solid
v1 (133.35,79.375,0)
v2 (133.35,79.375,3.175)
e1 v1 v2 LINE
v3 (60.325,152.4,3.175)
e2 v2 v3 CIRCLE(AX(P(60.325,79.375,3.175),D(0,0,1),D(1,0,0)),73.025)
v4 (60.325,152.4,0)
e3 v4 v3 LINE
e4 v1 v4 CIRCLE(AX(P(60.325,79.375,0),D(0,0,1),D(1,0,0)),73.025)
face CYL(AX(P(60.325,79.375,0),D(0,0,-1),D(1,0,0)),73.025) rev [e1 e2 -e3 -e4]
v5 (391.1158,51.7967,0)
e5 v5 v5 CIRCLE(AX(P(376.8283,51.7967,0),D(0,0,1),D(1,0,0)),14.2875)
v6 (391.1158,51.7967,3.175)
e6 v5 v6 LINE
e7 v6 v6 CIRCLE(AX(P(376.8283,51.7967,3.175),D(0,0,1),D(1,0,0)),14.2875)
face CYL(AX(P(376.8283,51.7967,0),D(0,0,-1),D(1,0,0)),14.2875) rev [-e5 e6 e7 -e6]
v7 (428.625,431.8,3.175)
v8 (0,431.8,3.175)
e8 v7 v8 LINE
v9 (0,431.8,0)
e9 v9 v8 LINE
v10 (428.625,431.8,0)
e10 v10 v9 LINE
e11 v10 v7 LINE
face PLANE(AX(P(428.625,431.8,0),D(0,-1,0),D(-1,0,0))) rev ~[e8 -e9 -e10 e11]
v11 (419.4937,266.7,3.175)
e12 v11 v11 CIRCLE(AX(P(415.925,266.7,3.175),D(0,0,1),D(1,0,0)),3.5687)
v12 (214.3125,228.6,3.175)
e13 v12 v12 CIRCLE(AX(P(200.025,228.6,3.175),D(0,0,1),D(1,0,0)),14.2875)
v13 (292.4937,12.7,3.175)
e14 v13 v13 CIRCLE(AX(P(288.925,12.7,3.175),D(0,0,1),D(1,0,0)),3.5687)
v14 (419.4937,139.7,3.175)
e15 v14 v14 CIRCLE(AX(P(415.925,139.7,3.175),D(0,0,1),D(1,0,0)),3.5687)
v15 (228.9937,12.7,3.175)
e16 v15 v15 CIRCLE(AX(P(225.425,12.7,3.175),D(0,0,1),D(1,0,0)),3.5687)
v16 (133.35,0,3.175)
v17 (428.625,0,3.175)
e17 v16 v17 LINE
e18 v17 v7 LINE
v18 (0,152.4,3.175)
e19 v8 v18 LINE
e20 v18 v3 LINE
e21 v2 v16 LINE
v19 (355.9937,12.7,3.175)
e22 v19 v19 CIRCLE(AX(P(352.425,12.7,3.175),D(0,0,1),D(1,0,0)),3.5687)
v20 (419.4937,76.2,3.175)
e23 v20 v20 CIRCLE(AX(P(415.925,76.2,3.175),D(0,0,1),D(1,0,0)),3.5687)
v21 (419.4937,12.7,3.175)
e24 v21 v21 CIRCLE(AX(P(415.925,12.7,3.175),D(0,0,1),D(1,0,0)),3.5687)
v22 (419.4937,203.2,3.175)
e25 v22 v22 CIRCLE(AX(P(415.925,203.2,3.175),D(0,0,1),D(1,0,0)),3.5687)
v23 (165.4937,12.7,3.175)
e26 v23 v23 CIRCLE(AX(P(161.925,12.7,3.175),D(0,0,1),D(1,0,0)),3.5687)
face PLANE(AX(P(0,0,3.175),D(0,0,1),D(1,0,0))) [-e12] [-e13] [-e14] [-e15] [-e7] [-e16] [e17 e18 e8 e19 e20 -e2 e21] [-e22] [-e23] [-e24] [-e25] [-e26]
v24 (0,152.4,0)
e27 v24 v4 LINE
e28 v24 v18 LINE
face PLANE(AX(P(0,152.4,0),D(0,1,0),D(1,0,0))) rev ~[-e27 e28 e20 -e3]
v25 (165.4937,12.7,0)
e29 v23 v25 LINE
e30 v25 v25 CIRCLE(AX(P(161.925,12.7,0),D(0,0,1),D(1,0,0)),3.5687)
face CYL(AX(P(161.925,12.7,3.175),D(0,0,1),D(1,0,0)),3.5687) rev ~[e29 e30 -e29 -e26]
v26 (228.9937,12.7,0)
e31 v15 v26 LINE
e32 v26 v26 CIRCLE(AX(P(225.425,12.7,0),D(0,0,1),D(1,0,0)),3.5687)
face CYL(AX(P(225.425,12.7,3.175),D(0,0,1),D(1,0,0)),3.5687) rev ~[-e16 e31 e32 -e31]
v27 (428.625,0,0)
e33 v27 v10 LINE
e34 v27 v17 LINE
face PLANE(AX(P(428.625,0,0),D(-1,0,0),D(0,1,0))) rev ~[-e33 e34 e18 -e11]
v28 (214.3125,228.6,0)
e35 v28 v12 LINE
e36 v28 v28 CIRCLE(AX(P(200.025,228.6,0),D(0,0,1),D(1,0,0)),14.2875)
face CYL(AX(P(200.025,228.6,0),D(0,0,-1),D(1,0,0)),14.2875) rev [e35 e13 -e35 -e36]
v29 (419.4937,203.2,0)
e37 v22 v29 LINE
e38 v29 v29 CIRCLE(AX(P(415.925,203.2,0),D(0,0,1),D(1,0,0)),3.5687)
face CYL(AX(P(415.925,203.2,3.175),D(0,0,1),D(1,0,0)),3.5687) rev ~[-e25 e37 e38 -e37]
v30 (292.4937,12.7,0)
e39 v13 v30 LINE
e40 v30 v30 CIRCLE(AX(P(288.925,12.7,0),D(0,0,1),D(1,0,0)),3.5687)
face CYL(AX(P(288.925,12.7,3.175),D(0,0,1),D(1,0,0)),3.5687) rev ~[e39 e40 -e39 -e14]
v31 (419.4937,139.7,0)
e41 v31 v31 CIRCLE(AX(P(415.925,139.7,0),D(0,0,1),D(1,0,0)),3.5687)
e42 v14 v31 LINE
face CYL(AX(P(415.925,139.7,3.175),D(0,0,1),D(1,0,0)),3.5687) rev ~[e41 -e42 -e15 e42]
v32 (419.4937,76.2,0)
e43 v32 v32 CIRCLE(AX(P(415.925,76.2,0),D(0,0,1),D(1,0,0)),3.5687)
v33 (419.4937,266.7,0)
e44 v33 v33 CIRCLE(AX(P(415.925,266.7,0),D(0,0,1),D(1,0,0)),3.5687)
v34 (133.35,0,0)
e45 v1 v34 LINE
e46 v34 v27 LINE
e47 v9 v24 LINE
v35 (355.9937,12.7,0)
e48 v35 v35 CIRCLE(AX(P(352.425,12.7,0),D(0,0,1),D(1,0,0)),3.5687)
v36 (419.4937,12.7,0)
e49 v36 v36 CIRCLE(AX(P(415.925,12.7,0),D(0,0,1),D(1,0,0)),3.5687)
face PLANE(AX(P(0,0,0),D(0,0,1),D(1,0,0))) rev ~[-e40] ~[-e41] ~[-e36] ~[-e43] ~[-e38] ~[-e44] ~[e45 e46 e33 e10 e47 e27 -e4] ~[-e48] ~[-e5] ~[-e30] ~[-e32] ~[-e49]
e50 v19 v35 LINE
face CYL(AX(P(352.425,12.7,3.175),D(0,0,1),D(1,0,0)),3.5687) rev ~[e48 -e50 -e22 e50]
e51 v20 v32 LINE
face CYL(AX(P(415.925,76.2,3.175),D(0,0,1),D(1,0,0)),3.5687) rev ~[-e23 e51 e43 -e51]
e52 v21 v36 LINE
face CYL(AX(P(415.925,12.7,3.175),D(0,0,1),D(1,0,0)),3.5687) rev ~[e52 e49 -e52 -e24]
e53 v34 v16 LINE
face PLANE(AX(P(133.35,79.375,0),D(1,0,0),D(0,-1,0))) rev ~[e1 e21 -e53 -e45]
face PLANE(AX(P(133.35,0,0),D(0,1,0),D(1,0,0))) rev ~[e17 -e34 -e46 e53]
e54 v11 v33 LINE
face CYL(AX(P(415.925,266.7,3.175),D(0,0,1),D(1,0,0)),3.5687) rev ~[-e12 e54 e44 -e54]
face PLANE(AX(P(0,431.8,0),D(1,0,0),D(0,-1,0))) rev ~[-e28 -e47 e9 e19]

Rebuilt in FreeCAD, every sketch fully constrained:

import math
import FreeCAD as App
import Part
import Sketcher

V = App.Vector
Q = App.Units.Quantity

doc = App.newDocument("Part")
body = doc.addObject("PartDesign::Body", "Body")

sketch1 = body.newObject("Sketcher::SketchObject", "Sketch")
sketch1.AttachmentSupport = (doc.getObject("XY_Plane"), [""])
sketch1.MapMode = "FlatFace"
sketch1.addGeometry(Part.LineSegment(V(133, 79, 0), V(133, 0, 0)), False)
sketch1.addGeometry(Part.LineSegment(V(133, 0, 0), V(429, 0, 0)), False)
sketch1.addGeometry(Part.LineSegment(V(429, 0, 0), V(429, 432, 0)), False)
sketch1.addGeometry(Part.LineSegment(V(429, 432, 0), V(0, 432, 0)), False)
sketch1.addGeometry(Part.LineSegment(V(0, 432, 0), V(0, 152, 0)), False)
sketch1.addGeometry(Part.LineSegment(V(0, 152, 0), V(60, 152, 0)), False)
sketch1.addGeometry(Part.ArcOfCircle(Part.Circle(V(60, 79, 0), V(0, 0, 1), 73), math.radians(0), math.radians(90)), False)
sketch1.addGeometry(Part.Circle(V(377, 52, 0), V(0, 0, 1), 14), False)
sketch1.addGeometry(Part.Circle(V(200, 229, 0), V(0, 0, 1), 14), False)
sketch1.addConstraint(Sketcher.Constraint("Coincident", 0, 2, 1, 1))
sketch1.addConstraint(Sketcher.Constraint("Coincident", 1, 2, 2, 1))
sketch1.addConstraint(Sketcher.Constraint("Coincident", 2, 2, 3, 1))
sketch1.addConstraint(Sketcher.Constraint("Coincident", 3, 2, 4, 1))
sketch1.addConstraint(Sketcher.Constraint("Coincident", 4, 2, 5, 1))
sketch1.addConstraint(Sketcher.Constraint("Tangent", 5, 2, 6, 2))
sketch1.addConstraint(Sketcher.Constraint("Tangent", 6, 1, 0, 1))
sketch1.addConstraint(Sketcher.Constraint("Vertical", 0))
sketch1.addConstraint(Sketcher.Constraint("Horizontal", 1))
sketch1.addConstraint(Sketcher.Constraint("Vertical", 2))
sketch1.addConstraint(Sketcher.Constraint("Horizontal", 3))
sketch1.addConstraint(Sketcher.Constraint("Vertical", 4))
sketch1.addConstraint(Sketcher.Constraint("Horizontal", 5))
sketch1.addConstraint(Sketcher.Constraint("Equal", 7, 8))
sketch1.addConstraint(Sketcher.Constraint("PointOnObject", 0, 2, -1))
sketch1.addConstraint(Sketcher.Constraint("PointOnObject", 3, 2, -2))
sketch1.addConstraint(Sketcher.Constraint("DistanceY", 2, 1, 2, 2, Q("17 in")))
sketch1.addConstraint(Sketcher.Constraint("Diameter", 7, Q("1.125 in")))
sketch1.addConstraint(Sketcher.Constraint("DistanceY", -1, 1, 8, 3, Q("9 in")))
sketch1.addConstraint(Sketcher.Constraint("DistanceY", -1, 1, 4, 2, Q("6 in")))
sketch1.addConstraint(Sketcher.Constraint("Radius", 6, Q("2.875 in")))
sketch1.addConstraint(Sketcher.Constraint("DistanceX", 8, 3, 1, 2, Q("9 in")))
sketch1.addConstraint(Sketcher.Constraint("DistanceX", 1, 1, 1, 2, Q("11.625 in")))
sketch1.addConstraint(Sketcher.Constraint("DistanceX", 3, 2, 3, 1, Q("16.875 in")))
sketch1.addConstraint(Sketcher.Constraint("DistanceX", -1, 1, 7, 3, Q("376.8283 mm")))
sketch1.addConstraint(Sketcher.Constraint("DistanceY", -1, 1, 7, 3, Q("51.7967 mm")))
pad1 = body.newObject("PartDesign::Pad", "Pad")
pad1.Profile = sketch1
pad1.Length = Q("0.125 in")

sketch2 = body.newObject("Sketcher::SketchObject", "Sketch001")
sketch2.AttachmentSupport = (doc.getObject("XY_Plane"), [""])
sketch2.MapMode = "FlatFace"
sketch2.AttachmentOffset = App.Placement(V(0, 0, 0.125 * 25.4), App.Rotation())
sketch2.addGeometry(Part.Circle(V(415.9, 12.7, 0), V(0, 0, 1), 3.6), False)
sketch2.addGeometry(Part.Circle(V(415.9, 76.2, 0), V(0, 0, 1), 3.6), False)
sketch2.addGeometry(Part.Circle(V(415.9, 139.7, 0), V(0, 0, 1), 3.6), False)
sketch2.addGeometry(Part.Circle(V(415.9, 203.2, 0), V(0, 0, 1), 3.6), False)
sketch2.addGeometry(Part.Circle(V(415.9, 266.7, 0), V(0, 0, 1), 3.6), False)
sketch2.addGeometry(Part.Circle(V(352.4, 12.7, 0), V(0, 0, 1), 3.6), False)
sketch2.addGeometry(Part.Circle(V(288.9, 12.7, 0), V(0, 0, 1), 3.6), False)
sketch2.addGeometry(Part.Circle(V(225.4, 12.7, 0), V(0, 0, 1), 3.6), False)
sketch2.addGeometry(Part.Circle(V(161.9, 12.7, 0), V(0, 0, 1), 3.6), False)
sketch2.addConstraint(Sketcher.Constraint("Equal", 0, 1))
sketch2.addConstraint(Sketcher.Constraint("Equal", 1, 2))
sketch2.addConstraint(Sketcher.Constraint("Equal", 2, 3))
sketch2.addConstraint(Sketcher.Constraint("Equal", 3, 4))
sketch2.addConstraint(Sketcher.Constraint("Equal", 4, 5))
sketch2.addConstraint(Sketcher.Constraint("Equal", 5, 6))
sketch2.addConstraint(Sketcher.Constraint("Equal", 6, 7))
sketch2.addConstraint(Sketcher.Constraint("Equal", 7, 8))
sketch2.addConstraint(Sketcher.Constraint("Horizontal", 0, 3, 5, 3))
sketch2.addConstraint(Sketcher.Constraint("Horizontal", 5, 3, 6, 3))
sketch2.addConstraint(Sketcher.Constraint("Horizontal", 6, 3, 7, 3))
sketch2.addConstraint(Sketcher.Constraint("Horizontal", 7, 3, 8, 3))
sketch2.addConstraint(Sketcher.Constraint("Vertical", 0, 3, 1, 3))
sketch2.addConstraint(Sketcher.Constraint("Vertical", 1, 3, 2, 3))
sketch2.addConstraint(Sketcher.Constraint("Vertical", 2, 3, 3, 3))
sketch2.addConstraint(Sketcher.Constraint("Vertical", 3, 3, 4, 3))
sketch2.addConstraint(Sketcher.Constraint("Diameter", 0, Q("0.281 in")))
sketch2.addConstraint(Sketcher.Constraint("DistanceY", -1, 1, 0, 3, Q("0.5 in")))
sketch2.addConstraint(Sketcher.Constraint("DistanceY", 0, 3, 1, 3, Q("2.5 in")))
sketch2.addConstraint(Sketcher.Constraint("DistanceY", 1, 3, 2, 3, Q("2.5 in")))
sketch2.addConstraint(Sketcher.Constraint("DistanceY", 2, 3, 3, 3, Q("2.5 in")))
sketch2.addConstraint(Sketcher.Constraint("DistanceY", 3, 3, 4, 3, Q("2.5 in")))
sketch2.addConstraint(Sketcher.Constraint("DistanceX", 5, 3, 0, 3, Q("2.5 in")))
sketch2.addConstraint(Sketcher.Constraint("DistanceX", 6, 3, 5, 3, Q("2.5 in")))
sketch2.addConstraint(Sketcher.Constraint("DistanceX", 7, 3, 6, 3, Q("2.5 in")))
sketch2.addConstraint(Sketcher.Constraint("DistanceX", 8, 3, 7, 3, Q("2.5 in")))
sketch2.addConstraint(Sketcher.Constraint("DistanceX", -1, 1, 0, 3, Q("16.375 in")))
pocket1 = body.newObject("PartDesign::Pocket", "Pocket")
pocket1.Profile = sketch2
pocket1.Length = Q("0.125 in")

doc.recompute()
